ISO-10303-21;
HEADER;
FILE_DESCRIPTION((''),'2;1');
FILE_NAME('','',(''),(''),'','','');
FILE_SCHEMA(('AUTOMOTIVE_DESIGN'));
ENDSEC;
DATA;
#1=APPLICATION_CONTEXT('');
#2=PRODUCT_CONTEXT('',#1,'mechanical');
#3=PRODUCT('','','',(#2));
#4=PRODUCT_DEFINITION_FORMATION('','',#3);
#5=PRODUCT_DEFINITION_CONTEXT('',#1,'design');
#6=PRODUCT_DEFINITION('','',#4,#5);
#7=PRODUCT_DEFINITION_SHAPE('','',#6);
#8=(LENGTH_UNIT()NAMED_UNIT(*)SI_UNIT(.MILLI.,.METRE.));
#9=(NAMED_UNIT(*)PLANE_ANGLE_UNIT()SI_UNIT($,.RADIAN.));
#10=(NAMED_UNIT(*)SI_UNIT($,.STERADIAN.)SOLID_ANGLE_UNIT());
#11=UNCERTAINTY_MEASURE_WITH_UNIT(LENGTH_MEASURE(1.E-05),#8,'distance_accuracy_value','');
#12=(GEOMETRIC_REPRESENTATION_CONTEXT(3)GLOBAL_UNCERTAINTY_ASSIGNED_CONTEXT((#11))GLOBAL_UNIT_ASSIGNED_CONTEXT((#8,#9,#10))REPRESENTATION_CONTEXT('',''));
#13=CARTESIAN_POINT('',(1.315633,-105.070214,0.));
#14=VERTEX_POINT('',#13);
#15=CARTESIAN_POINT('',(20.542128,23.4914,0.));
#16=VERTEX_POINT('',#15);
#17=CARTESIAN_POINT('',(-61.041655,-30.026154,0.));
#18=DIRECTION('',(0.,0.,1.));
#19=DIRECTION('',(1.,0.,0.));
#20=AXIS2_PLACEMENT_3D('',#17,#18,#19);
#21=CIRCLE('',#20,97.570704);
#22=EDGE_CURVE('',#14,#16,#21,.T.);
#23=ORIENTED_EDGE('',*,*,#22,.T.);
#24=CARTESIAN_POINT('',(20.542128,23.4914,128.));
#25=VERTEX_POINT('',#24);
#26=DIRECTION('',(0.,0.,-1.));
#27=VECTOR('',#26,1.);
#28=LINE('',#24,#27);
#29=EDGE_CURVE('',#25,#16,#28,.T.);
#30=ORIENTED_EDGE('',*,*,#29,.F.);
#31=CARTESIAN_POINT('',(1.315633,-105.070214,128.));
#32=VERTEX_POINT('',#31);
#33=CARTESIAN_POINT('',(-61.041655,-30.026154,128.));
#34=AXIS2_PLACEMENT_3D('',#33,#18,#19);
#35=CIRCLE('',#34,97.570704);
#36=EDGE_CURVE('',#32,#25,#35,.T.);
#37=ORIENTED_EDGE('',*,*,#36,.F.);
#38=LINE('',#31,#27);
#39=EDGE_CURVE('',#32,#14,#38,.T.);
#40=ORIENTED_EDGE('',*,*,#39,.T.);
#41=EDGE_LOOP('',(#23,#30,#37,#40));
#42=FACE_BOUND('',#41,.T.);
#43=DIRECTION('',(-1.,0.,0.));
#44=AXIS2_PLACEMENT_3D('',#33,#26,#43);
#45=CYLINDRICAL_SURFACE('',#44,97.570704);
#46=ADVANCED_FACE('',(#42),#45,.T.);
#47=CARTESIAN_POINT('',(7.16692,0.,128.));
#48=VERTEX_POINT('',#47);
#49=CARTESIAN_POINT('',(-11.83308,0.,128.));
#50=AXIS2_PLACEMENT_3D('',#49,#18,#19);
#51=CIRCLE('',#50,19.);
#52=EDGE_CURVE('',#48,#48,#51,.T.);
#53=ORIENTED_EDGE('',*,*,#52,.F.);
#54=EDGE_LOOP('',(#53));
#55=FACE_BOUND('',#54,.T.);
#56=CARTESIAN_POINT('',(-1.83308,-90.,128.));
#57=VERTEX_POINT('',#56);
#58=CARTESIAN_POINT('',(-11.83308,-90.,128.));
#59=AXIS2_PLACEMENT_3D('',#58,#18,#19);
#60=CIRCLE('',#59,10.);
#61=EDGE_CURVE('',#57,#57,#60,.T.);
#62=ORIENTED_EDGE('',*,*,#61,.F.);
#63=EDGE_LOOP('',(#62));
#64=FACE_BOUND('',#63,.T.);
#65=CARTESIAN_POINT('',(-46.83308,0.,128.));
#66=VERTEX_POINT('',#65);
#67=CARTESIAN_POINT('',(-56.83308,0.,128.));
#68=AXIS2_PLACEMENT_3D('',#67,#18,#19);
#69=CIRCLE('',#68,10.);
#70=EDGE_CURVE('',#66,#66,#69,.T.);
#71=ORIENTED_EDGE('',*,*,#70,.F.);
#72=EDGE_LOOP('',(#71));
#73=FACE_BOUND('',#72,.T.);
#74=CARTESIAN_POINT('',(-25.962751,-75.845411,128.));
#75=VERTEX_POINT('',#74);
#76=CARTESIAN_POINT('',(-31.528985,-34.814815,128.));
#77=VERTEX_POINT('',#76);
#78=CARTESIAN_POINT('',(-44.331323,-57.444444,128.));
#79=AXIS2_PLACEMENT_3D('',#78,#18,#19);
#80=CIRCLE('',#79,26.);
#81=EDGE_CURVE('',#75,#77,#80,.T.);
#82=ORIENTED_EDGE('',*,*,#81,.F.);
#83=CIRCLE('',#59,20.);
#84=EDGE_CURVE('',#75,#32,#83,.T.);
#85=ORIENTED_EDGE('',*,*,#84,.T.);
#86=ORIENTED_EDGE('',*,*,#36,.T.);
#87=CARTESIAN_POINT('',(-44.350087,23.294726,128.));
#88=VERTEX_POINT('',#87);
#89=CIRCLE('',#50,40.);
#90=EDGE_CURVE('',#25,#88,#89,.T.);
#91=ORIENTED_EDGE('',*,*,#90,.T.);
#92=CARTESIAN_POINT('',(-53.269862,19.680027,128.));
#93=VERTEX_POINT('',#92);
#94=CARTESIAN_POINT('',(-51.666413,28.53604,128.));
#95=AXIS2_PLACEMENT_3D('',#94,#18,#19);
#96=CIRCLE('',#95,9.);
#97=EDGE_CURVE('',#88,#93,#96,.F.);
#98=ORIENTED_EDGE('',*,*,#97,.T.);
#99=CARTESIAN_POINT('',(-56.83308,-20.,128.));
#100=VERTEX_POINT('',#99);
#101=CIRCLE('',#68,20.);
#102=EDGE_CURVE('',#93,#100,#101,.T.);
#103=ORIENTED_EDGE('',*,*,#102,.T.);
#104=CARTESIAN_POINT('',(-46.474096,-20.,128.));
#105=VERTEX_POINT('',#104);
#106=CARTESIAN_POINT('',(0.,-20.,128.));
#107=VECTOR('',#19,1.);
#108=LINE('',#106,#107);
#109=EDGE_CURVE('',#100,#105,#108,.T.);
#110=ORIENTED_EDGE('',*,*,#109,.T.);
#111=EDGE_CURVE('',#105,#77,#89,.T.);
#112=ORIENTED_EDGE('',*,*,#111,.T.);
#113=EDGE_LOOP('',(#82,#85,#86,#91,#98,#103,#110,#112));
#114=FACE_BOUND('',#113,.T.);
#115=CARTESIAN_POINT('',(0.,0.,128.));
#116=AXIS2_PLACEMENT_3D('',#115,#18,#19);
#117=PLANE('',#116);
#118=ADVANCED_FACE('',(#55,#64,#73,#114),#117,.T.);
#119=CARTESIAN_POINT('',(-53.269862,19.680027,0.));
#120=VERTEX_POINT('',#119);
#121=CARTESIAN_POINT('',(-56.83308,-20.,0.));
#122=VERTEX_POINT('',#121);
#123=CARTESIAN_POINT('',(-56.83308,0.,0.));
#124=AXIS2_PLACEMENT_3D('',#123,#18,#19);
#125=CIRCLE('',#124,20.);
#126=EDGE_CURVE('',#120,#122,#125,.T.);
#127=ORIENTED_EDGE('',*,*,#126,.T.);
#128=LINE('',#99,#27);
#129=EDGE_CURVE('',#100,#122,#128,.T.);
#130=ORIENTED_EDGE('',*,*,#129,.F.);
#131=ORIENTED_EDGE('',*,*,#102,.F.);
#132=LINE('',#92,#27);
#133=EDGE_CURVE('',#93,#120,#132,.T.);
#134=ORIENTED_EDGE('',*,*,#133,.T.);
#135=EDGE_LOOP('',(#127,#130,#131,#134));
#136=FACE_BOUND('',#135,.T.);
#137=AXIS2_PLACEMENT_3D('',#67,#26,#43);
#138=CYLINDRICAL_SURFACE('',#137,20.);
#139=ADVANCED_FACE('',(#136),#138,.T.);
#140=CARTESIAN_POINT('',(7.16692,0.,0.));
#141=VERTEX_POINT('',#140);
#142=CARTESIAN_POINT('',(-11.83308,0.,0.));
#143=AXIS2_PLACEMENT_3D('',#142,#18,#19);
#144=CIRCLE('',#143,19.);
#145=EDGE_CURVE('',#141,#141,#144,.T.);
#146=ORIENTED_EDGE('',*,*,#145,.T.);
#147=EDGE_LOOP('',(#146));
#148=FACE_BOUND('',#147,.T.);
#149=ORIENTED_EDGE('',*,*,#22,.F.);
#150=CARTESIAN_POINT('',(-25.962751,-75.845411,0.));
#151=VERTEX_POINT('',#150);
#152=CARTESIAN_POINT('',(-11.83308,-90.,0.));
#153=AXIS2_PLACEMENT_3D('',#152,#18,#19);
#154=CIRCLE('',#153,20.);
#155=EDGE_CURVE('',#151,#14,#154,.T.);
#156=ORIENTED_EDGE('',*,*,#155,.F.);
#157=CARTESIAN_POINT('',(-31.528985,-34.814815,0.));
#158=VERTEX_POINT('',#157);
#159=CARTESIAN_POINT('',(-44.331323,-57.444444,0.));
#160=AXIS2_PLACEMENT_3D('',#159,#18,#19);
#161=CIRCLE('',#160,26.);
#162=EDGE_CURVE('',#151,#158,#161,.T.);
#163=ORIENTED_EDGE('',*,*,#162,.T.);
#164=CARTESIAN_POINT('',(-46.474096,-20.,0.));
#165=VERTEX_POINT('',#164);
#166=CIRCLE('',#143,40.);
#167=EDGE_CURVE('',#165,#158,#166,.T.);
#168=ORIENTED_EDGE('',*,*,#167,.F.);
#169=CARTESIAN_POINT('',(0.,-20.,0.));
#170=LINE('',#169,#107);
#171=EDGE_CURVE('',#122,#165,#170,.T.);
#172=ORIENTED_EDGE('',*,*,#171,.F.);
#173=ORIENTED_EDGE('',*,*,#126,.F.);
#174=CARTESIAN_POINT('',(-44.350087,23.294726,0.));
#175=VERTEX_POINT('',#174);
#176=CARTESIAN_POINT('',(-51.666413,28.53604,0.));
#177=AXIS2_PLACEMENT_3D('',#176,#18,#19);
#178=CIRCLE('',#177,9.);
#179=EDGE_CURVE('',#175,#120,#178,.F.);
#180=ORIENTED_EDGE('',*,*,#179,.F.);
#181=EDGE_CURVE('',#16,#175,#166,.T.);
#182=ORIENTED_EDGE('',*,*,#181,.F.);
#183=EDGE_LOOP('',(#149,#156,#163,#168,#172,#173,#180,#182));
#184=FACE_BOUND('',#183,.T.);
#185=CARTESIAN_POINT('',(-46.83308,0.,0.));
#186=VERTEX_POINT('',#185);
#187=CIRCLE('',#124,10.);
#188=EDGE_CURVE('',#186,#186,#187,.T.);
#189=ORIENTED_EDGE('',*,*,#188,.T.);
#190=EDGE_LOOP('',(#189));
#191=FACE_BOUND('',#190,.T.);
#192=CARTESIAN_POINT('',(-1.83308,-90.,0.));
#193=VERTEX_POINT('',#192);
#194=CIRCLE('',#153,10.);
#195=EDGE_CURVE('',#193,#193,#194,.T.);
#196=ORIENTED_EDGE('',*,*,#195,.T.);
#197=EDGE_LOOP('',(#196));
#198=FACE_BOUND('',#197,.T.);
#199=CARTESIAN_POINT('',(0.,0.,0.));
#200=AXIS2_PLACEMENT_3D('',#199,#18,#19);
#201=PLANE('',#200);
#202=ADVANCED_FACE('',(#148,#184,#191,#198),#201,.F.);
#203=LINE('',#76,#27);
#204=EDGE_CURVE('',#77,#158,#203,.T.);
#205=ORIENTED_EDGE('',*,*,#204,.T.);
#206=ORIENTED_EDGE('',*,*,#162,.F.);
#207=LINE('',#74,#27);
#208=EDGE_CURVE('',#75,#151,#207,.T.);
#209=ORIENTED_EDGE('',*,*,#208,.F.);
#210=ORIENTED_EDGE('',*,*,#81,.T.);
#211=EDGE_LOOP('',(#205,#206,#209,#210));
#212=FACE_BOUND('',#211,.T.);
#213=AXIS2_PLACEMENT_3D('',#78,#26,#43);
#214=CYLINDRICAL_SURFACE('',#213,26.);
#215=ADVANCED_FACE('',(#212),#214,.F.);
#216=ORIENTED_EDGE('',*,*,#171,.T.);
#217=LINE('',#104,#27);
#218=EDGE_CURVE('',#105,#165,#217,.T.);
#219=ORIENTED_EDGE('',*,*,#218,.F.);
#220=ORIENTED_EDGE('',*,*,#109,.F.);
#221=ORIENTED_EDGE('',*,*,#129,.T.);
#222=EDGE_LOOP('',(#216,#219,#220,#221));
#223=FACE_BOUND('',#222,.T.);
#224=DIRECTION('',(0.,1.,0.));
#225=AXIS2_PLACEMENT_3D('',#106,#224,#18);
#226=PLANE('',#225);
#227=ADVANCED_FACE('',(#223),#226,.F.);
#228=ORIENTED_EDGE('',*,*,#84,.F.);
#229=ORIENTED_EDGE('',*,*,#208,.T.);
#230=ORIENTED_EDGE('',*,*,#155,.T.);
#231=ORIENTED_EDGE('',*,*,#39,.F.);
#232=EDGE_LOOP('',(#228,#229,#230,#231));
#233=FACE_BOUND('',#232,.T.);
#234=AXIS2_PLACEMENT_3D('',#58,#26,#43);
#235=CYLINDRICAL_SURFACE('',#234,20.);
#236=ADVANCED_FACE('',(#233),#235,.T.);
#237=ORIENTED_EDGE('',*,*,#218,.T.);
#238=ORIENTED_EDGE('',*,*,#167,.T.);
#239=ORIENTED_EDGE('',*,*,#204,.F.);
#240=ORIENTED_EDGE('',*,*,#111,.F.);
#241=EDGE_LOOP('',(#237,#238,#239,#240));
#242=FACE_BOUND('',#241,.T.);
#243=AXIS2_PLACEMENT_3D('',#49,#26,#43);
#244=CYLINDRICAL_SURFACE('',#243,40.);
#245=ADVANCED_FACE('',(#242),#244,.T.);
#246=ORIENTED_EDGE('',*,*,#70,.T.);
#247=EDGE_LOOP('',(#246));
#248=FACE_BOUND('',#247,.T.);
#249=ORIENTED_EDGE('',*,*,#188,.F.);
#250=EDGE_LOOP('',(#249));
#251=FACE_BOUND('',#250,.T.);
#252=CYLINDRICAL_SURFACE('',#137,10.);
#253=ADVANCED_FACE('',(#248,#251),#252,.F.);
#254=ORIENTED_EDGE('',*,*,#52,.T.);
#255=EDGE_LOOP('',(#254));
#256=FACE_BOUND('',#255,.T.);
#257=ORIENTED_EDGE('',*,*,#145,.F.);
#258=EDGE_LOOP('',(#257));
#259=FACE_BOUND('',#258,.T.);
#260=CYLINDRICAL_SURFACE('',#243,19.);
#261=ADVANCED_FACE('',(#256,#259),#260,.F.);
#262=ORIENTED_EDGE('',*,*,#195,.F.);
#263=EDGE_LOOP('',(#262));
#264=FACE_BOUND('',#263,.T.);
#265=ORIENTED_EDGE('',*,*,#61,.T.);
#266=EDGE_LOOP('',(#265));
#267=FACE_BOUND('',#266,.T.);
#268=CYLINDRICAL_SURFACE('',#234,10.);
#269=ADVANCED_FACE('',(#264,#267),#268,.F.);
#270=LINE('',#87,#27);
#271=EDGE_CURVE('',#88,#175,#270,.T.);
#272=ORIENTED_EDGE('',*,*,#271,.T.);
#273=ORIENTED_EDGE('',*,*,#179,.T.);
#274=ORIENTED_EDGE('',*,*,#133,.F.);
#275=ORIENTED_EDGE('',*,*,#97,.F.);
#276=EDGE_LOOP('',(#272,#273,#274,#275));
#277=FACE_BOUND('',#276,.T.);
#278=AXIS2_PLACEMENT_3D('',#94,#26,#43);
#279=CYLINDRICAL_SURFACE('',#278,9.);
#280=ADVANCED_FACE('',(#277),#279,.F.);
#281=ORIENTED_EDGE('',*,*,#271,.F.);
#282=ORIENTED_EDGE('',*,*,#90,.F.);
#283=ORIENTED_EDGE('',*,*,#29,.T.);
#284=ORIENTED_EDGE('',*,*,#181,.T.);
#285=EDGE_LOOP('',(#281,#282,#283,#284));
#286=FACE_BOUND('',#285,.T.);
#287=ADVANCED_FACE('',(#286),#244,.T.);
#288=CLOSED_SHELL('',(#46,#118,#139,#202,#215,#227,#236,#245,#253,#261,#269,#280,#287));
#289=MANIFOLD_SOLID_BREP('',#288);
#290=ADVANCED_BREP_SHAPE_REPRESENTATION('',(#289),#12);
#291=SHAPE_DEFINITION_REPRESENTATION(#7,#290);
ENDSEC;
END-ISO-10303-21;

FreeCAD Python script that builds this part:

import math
import FreeCAD as App
import Part
import Sketcher
from FreeCAD import Vector
Q = App.Units.Quantity

doc = App.newDocument("Part")
body = doc.addObject("PartDesign::Body", "Body")

# Sketch on XY plane
sketch1 = body.newObject("Sketcher::SketchObject", "Sketch")
sketch1.AttachmentSupport = (doc.getObject("XY_Plane"), [""])
sketch1.MapMode = "FlatFace"
sketch1.addGeometry([
    Part.ArcOfCircle(Part.Circle(Vector(-12, 0, 0), Vector(0, 0, 1), 40), math.radians(36), math.radians(144)),  # 0
    Part.ArcOfCircle(Part.Circle(Vector(-52, 29, 0), Vector(0, 0, 1), 9), math.radians(-100), math.radians(-36)),  # 1
    Part.ArcOfCircle(Part.Circle(Vector(-57, 0, 0), Vector(0, 0, 1), 20), math.radians(80), math.radians(270)),  # 2
    Part.LineSegment(Vector(-57, -20, 0), Vector(-46, -20, 0)),  # 3
    Part.ArcOfCircle(Part.Circle(Vector(-12, 0, 0), Vector(0, 0, 1), 40), math.radians(-150), math.radians(-119)),  # 4
    Part.ArcOfCircle(Part.Circle(Vector(-44, -57, 0), Vector(0, 0, 1), 26), math.radians(-45), math.radians(61)),  # 5
    Part.ArcOfCircle(Part.Circle(Vector(-12, -90, 0), Vector(0, 0, 1), 20), math.radians(135), math.radians(311)),  # 6
    Part.ArcOfCircle(Part.Circle(Vector(-61, -30, 0), Vector(0, 0, 1), 98), math.radians(-50), math.radians(33)),  # 7
    Part.Circle(Vector(-12, -90, 0), Vector(0, 0, 1), 10),  # 8
    Part.Circle(Vector(-57, 0, 0), Vector(0, 0, 1), 10),  # 9
    Part.Circle(Vector(-12, 0, 0), Vector(0, 0, 1), 19),  # 10
], False)
sketch1.addConstraint([
    Sketcher.Constraint("Tangent", 0, 2, 1, 2),
    Sketcher.Constraint("Tangent", 1, 1, 2, 1),
    Sketcher.Constraint("Tangent", 2, 2, 3, 1),
    Sketcher.Constraint("Coincident", 3, 2, 4, 1),
    Sketcher.Constraint("Tangent", 4, 2, 5, 2),
    Sketcher.Constraint("Tangent", 5, 1, 6, 1),
    Sketcher.Constraint("Coincident", 6, 2, 7, 1),
    Sketcher.Constraint("Coincident", 7, 2, 0, 1),
    Sketcher.Constraint("Horizontal", 3),
    Sketcher.Constraint("Coincident", 4, 3, 0, 3),
    Sketcher.Constraint("Coincident", 8, 3, 6, 3),
    Sketcher.Constraint("Coincident", 9, 3, 2, 3),
    Sketcher.Constraint("Coincident", 10, 3, 0, 3),
    Sketcher.Constraint("Equal", 0, 4),
    Sketcher.Constraint("Equal", 2, 6),
    Sketcher.Constraint("Equal", 8, 9),
    Sketcher.Constraint("PointOnObject", 0, 3, -1),
    Sketcher.Constraint("PointOnObject", 2, 3, -1),
    Sketcher.Constraint("Vertical", 4, 3, 6, 3),
    Sketcher.Constraint("Diameter", 8, Q("20 mm")),
    Sketcher.Constraint("Diameter", 10, Q("38 mm")),
    Sketcher.Constraint("Radius", 0, Q("40 mm")),
    Sketcher.Constraint("Radius", 1, Q("9 mm")),
    Sketcher.Constraint("Radius", 2, Q("20 mm")),
    Sketcher.Constraint("Radius", 5, Q("26 mm")),
    Sketcher.Constraint("DistanceY", 6, 3, -1, 1, Q("90 mm")),
    Sketcher.Constraint("DistanceX", 2, 3, 0, 3, Q("45 mm")),
    Sketcher.Constraint("Radius", 7, Q("97.570704 mm")),
    Sketcher.Constraint("DistanceY", -1, 1, 7, 2, Q("23.4914 mm")),
    Sketcher.Constraint("DistanceY", 6, 2, 4, 2, Q("70.255399 mm")),
    Sketcher.Constraint("DistanceX", 0, 3, -1, 1, Q("11.83308 mm")),
])
pad1 = body.newObject("PartDesign::Pad", "Pad")
pad1.Profile = sketch1
pad1.Length = 128

doc.recompute()
